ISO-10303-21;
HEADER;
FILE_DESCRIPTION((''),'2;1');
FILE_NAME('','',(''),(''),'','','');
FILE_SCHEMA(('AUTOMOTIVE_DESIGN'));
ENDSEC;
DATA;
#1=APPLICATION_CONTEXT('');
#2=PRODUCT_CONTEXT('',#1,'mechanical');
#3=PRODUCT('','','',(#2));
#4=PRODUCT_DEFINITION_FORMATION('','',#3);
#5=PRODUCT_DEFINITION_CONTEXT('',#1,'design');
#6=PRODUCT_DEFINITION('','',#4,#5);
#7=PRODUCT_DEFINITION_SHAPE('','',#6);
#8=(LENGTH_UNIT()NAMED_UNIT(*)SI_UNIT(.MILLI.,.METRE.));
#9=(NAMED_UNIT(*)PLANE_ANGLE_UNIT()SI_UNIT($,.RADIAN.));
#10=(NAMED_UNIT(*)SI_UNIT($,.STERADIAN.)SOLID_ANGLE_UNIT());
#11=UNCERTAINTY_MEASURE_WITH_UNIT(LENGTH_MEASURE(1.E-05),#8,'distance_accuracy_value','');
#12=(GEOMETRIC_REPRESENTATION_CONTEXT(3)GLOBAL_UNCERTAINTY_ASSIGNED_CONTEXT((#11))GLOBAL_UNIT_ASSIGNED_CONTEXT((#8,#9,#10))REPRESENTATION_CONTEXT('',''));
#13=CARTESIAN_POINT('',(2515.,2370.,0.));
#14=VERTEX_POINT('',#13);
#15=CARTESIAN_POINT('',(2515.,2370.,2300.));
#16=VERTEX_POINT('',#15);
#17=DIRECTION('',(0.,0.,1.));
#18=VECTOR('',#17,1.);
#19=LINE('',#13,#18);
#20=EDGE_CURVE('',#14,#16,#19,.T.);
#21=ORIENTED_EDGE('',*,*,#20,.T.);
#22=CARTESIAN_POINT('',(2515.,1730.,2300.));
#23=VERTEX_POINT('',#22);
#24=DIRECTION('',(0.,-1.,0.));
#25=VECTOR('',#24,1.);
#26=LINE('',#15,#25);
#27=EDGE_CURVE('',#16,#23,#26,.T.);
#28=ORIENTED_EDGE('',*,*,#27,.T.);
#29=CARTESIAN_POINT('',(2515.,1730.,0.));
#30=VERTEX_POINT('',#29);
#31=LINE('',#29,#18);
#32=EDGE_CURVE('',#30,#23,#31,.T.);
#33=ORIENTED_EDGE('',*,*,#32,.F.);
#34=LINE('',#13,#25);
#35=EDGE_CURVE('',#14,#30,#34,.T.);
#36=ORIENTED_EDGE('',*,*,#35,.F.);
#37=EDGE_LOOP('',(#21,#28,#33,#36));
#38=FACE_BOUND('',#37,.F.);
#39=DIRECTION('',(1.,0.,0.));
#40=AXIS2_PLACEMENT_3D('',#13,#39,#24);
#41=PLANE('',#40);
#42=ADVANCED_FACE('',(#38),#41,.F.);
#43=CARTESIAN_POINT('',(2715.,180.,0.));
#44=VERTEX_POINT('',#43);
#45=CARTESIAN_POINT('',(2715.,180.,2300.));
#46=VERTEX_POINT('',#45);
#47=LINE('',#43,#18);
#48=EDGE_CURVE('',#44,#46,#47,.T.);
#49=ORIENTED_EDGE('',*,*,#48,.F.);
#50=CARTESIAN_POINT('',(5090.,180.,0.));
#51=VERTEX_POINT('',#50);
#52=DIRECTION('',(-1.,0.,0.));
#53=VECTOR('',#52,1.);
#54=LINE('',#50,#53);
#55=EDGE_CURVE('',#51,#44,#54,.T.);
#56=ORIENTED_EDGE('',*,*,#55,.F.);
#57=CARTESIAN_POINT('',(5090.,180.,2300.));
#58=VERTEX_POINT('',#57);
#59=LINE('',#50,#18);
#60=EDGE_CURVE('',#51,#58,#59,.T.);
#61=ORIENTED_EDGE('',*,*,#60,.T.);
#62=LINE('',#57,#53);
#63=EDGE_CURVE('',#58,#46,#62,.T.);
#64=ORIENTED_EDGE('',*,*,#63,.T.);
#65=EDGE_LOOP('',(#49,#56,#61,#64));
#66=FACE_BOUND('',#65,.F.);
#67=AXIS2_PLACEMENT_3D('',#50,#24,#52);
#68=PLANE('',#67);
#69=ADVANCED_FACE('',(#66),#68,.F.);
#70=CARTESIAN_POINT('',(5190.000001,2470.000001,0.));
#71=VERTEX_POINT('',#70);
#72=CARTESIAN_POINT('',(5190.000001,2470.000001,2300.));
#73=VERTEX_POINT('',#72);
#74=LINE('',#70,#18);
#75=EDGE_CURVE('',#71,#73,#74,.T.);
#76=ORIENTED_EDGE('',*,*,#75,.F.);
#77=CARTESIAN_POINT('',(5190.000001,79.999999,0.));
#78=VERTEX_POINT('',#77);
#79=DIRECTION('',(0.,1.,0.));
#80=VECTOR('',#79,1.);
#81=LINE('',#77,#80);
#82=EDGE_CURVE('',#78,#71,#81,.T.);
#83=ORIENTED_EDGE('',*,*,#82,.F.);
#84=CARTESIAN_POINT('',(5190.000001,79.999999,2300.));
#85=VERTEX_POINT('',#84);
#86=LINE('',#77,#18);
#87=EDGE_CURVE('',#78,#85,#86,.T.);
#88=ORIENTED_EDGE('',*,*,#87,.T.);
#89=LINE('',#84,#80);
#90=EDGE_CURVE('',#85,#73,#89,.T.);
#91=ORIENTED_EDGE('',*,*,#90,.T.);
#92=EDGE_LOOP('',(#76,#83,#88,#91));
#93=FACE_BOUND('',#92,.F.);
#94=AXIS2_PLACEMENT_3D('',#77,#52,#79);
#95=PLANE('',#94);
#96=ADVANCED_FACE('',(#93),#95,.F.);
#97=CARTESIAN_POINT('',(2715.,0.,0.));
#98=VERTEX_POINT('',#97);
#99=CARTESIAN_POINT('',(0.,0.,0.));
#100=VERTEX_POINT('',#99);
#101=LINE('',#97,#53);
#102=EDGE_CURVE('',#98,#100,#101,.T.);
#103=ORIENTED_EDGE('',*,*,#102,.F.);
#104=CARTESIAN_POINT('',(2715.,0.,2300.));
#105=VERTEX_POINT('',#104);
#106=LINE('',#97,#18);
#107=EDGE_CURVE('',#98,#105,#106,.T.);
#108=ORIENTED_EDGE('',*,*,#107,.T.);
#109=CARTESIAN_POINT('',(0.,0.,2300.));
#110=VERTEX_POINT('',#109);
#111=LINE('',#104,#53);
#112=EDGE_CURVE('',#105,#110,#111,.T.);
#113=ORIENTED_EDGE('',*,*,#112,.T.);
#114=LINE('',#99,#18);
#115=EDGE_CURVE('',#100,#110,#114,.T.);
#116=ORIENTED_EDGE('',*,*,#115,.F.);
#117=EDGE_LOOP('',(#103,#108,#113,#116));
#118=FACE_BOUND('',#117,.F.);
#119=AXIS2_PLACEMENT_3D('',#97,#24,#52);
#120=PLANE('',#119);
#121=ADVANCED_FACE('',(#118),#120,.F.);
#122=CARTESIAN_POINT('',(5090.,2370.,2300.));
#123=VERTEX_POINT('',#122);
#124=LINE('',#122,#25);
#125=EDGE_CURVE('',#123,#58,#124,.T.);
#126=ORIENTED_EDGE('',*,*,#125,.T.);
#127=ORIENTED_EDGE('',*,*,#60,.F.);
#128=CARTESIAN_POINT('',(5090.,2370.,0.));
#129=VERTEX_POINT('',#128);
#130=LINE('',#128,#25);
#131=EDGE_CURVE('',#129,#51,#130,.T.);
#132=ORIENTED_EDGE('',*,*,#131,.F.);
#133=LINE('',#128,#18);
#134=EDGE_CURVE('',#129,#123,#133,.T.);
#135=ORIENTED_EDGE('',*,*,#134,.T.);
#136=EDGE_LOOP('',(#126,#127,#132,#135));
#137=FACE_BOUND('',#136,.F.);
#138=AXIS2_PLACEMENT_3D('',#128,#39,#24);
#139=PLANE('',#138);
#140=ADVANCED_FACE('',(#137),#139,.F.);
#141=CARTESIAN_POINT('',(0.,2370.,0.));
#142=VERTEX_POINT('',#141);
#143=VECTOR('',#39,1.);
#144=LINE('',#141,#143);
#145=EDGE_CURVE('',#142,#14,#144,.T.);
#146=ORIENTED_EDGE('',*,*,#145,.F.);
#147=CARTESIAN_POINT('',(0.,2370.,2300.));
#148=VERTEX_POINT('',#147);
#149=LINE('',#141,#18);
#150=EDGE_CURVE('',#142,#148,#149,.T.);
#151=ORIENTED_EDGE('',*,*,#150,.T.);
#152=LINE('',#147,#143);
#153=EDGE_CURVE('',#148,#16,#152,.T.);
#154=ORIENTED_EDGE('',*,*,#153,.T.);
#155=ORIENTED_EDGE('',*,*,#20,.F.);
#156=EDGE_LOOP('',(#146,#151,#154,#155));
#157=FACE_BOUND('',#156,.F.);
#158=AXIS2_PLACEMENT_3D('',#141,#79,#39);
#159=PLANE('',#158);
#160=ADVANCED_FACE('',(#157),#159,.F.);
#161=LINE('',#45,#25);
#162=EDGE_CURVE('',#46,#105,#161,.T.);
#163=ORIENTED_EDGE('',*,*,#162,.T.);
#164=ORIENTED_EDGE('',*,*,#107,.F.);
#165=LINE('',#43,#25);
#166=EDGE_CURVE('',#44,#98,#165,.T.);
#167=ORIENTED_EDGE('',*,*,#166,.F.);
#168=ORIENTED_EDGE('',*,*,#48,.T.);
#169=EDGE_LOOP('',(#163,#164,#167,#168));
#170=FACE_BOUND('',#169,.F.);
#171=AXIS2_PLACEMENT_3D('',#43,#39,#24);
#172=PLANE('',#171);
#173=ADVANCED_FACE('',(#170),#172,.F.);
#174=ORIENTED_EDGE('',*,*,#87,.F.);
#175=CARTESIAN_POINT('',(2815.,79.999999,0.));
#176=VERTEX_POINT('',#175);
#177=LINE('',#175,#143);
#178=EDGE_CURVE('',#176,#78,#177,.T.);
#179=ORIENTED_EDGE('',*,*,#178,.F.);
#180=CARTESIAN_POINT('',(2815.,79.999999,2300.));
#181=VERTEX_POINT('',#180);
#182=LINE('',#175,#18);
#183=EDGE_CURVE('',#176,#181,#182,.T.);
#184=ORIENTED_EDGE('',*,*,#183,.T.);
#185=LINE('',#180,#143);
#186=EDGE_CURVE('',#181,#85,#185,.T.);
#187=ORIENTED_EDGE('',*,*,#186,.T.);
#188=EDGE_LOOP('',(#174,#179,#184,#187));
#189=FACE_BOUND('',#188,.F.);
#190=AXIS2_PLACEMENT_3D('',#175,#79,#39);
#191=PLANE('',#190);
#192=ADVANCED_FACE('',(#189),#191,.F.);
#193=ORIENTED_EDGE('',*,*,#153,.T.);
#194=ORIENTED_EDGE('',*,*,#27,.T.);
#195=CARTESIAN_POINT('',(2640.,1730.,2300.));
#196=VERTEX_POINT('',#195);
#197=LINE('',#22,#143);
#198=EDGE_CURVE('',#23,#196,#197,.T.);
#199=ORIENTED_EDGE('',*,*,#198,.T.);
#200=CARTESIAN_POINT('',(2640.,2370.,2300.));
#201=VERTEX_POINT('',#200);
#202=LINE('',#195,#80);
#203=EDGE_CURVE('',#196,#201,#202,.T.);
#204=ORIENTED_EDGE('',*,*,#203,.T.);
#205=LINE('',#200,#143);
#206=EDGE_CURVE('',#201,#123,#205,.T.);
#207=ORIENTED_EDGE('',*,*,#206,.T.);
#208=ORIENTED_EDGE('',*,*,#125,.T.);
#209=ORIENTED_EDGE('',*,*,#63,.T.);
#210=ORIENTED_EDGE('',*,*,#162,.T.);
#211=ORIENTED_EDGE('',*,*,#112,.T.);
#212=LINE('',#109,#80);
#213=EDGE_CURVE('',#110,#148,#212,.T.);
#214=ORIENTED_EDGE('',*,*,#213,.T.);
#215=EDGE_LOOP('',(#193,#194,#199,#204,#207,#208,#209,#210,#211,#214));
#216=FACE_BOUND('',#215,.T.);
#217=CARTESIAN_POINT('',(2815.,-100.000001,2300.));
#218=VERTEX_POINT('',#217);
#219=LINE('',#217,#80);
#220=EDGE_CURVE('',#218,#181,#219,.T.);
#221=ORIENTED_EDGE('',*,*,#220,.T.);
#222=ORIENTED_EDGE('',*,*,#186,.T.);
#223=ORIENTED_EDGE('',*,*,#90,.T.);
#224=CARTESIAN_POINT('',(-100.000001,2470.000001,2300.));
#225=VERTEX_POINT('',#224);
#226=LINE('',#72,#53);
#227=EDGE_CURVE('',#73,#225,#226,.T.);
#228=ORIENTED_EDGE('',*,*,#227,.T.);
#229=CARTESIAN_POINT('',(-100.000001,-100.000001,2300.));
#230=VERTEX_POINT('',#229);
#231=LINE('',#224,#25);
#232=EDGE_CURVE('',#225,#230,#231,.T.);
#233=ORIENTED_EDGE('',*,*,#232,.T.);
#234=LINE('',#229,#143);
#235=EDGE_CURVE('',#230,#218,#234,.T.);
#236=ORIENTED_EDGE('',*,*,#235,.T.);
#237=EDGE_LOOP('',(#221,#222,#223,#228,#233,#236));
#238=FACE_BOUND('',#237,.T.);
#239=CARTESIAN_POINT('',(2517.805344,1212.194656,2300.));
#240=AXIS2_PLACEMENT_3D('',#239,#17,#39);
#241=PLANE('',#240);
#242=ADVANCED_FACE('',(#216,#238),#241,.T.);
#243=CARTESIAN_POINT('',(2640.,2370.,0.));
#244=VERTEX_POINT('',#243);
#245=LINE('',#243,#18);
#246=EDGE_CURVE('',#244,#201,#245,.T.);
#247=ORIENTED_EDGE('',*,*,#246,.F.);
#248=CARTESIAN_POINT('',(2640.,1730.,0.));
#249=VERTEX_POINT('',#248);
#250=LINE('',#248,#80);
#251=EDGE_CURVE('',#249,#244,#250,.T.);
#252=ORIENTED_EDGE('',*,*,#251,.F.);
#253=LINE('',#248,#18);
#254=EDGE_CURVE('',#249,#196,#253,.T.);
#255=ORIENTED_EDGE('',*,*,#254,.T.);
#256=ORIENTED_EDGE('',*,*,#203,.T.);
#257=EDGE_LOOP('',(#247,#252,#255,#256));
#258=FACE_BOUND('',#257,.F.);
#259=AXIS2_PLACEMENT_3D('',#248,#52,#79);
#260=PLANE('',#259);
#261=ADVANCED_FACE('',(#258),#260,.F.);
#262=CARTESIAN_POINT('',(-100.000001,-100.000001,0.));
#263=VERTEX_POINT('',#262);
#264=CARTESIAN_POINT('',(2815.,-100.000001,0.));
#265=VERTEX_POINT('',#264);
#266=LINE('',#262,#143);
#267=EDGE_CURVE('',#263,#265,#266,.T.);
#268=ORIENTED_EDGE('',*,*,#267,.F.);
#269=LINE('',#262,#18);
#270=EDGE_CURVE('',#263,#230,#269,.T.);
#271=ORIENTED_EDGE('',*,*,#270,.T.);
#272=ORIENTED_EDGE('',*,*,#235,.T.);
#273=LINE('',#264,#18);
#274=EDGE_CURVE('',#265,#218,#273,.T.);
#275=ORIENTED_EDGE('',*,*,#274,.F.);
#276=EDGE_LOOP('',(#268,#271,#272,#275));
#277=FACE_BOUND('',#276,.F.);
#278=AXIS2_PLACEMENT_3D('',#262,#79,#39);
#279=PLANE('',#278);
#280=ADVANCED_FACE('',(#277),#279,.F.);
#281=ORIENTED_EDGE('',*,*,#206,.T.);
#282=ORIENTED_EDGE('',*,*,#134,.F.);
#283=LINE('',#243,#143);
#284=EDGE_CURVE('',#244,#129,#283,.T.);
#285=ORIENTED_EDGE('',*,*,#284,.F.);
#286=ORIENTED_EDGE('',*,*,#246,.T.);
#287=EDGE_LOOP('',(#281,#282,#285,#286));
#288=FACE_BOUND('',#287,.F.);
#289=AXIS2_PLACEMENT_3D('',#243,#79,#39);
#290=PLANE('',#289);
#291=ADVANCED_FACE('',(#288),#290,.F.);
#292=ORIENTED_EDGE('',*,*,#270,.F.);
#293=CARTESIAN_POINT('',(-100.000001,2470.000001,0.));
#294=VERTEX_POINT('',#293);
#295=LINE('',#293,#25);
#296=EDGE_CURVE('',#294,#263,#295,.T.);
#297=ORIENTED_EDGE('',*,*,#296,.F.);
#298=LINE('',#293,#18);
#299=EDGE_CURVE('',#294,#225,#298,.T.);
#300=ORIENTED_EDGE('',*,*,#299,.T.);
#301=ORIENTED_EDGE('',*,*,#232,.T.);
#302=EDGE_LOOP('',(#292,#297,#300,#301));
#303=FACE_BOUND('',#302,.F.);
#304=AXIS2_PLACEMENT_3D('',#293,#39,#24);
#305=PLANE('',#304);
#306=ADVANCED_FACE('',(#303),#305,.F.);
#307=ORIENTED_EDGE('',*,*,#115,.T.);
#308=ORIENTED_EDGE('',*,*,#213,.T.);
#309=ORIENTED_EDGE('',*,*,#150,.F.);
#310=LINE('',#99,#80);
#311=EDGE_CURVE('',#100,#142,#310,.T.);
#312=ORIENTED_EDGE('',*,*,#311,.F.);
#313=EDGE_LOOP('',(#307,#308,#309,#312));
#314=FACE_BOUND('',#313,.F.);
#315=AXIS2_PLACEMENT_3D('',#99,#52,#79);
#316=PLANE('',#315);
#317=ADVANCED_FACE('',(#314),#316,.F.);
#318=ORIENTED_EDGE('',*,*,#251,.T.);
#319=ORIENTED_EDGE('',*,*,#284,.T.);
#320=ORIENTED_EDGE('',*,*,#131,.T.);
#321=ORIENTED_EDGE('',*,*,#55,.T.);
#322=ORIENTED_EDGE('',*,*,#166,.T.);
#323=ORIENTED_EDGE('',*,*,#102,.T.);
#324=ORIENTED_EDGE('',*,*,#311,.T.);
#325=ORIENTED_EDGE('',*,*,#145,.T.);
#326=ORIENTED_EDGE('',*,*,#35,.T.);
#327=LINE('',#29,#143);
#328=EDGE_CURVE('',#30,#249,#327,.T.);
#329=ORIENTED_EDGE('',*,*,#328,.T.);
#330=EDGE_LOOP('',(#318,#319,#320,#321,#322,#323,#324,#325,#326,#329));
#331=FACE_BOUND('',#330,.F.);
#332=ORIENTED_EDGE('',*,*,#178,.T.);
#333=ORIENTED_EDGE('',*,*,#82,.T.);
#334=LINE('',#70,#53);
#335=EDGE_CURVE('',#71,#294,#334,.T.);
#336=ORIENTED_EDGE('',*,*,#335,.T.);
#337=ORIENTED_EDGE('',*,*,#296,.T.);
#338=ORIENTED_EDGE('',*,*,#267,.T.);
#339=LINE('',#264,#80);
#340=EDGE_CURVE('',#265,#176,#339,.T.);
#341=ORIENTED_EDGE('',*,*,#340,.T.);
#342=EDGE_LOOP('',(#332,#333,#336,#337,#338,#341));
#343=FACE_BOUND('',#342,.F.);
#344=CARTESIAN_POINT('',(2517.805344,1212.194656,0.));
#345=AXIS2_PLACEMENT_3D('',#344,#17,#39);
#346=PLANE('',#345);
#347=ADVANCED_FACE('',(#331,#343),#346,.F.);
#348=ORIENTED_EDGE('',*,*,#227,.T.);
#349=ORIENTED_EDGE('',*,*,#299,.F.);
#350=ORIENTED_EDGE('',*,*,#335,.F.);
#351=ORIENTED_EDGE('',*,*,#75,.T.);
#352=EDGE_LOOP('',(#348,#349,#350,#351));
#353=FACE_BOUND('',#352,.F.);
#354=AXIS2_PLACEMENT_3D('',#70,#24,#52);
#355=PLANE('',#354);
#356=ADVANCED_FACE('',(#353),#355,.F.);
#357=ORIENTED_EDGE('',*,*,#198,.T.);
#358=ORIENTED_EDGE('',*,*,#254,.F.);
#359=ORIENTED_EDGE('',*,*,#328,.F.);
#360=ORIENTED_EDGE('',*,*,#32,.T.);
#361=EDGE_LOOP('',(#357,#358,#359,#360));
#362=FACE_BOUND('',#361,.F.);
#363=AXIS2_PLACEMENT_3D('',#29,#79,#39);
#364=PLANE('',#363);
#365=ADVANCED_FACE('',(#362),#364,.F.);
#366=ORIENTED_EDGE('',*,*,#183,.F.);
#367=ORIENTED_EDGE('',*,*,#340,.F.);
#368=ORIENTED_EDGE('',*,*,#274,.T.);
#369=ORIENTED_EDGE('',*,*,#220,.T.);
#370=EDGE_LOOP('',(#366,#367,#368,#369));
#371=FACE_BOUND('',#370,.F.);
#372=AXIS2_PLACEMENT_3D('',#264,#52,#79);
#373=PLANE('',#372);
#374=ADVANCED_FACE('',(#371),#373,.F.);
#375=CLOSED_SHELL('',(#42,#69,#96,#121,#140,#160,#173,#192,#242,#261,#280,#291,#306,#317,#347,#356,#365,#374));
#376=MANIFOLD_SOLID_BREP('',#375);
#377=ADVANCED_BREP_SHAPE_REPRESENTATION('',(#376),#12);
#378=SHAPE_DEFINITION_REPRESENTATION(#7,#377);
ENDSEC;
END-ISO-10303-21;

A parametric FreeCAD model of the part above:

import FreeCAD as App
import Part
import Sketcher
Q = App.Units.Quantity

doc = App.newDocument("Part")
params = doc.addObject("Spreadsheet::Sheet", "Params")
for row, (alias, value) in enumerate([
    ("sketch1_width", "2375.000001 mm"),
    ("sketch1_width2", "2915.000001 mm"),
    ("sketch1_width3", "2715 mm"),
    ("sketch1_width4", "2515 mm"),
    ("sketch1_width5", "125 mm"),
    ("pad1_length", "2300 mm"),
], start=1):
    params.set(f"A{row}", alias)
    params.set(f"B{row}", "=" + value)
    params.setAlias(f"B{row}", alias)

body = doc.addObject("PartDesign::Body", "Body")

# Sketch on XY plane
sketch1 = body.newObject("Sketcher::SketchObject", "Sketch")
sketch1.AttachmentSupport = (doc.getObject("XY_Plane"), [""])
sketch1.MapMode = "FlatFace"
sketch1.addGeometry([
    Part.LineSegment(App.Vector(2815, -100.000001, 0), App.Vector(2815, 79.999999, 0)),  # 0
    Part.LineSegment(App.Vector(2815, 79.999999, 0), App.Vector(5190.000001, 79.999999, 0)),  # 1
    Part.LineSegment(App.Vector(5190.000001, 79.999999, 0), App.Vector(5190.000001, 2470.000001, 0)),  # 2
    Part.LineSegment(App.Vector(5190.000001, 2470.000001, 0), App.Vector(-100.000001, 2470.000001, 0)),  # 3
    Part.LineSegment(App.Vector(-100.000001, 2470.000001, 0), App.Vector(-100.000001, -100.000001, 0)),  # 4
    Part.LineSegment(App.Vector(-100.000001, -100.000001, 0), App.Vector(2815, -100.000001, 0)),  # 5
    Part.LineSegment(App.Vector(2715, 180, 0), App.Vector(2715, 0, 0)),  # 6
    Part.LineSegment(App.Vector(2715, 0, 0), App.Vector(0, 0, 0)),  # 7
    Part.LineSegment(App.Vector(0, 0, 0), App.Vector(0, 2370, 0)),  # 8
    Part.LineSegment(App.Vector(0, 2370, 0), App.Vector(2515, 2370, 0)),  # 9
    Part.LineSegment(App.Vector(2515, 2370, 0), App.Vector(2515, 1730, 0)),  # 10
    Part.LineSegment(App.Vector(2515, 1730, 0), App.Vector(2640, 1730, 0)),  # 11
    Part.LineSegment(App.Vector(2640, 1730, 0), App.Vector(2640, 2370, 0)),  # 12
    Part.LineSegment(App.Vector(2640, 2370, 0), App.Vector(5090, 2370, 0)),  # 13
    Part.LineSegment(App.Vector(5090, 2370, 0), App.Vector(5090, 180, 0)),  # 14
    Part.LineSegment(App.Vector(5090, 180, 0), App.Vector(2715, 180, 0)),  # 15
], False)
sketch1.addConstraint([
    Sketcher.Constraint("Coincident", 0, 2, 1, 1),
    Sketcher.Constraint("Coincident", 1, 2, 2, 1),
    Sketcher.Constraint("Coincident", 2, 2, 3, 1),
    Sketcher.Constraint("Coincident", 3, 2, 4, 1),
    Sketcher.Constraint("Coincident", 4, 2, 5, 1),
    Sketcher.Constraint("Coincident", 5, 2, 0, 1),
    Sketcher.Constraint("Coincident", 6, 2, 7, 1),
    Sketcher.Constraint("Coincident", 7, 2, 8, 1),
    Sketcher.Constraint("Coincident", 8, 2, 9, 1),
    Sketcher.Constraint("Coincident", 9, 2, 10, 1),
    Sketcher.Constraint("Coincident", 10, 2, 11, 1),
    Sketcher.Constraint("Coincident", 11, 2, 12, 1),
    Sketcher.Constraint("Coincident", 12, 2, 13, 1),
    Sketcher.Constraint("Coincident", 13, 2, 14, 1),
    Sketcher.Constraint("Coincident", 14, 2, 15, 1),
    Sketcher.Constraint("Coincident", 15, 2, 6, 1),
    Sketcher.Constraint("Vertical", 0),
    Sketcher.Constraint("Horizontal", 1),
    Sketcher.Constraint("Vertical", 2),
    Sketcher.Constraint("Horizontal", 3),
    Sketcher.Constraint("Vertical", 4),
    Sketcher.Constraint("Horizontal", 5),
    Sketcher.Constraint("Vertical", 6),
    Sketcher.Constraint("Horizontal", 7),
    Sketcher.Constraint("Vertical", 8),
    Sketcher.Constraint("Horizontal", 9),
    Sketcher.Constraint("Vertical", 10),
    Sketcher.Constraint("Horizontal", 11),
    Sketcher.Constraint("Vertical", 12),
    Sketcher.Constraint("Horizontal", 13),
    Sketcher.Constraint("Vertical", 14),
    Sketcher.Constraint("Horizontal", 15),
    Sketcher.Constraint("Coincident", 7, 2, -1, 1),
    Sketcher.Constraint("Horizontal", 9, 2, 12, 2),
    Sketcher.Constraint("Equal", 1, 15),
    Sketcher.Constraint("Equal", 0, 6),
    Sketcher.Constraint("DistanceX", 1, 1, 1, 2, Q("2375.000001 mm")),
    Sketcher.Constraint("DistanceX", 5, 1, 5, 2, Q("2915.000001 mm")),
    Sketcher.Constraint("DistanceX", 7, 2, 7, 1, Q("2715 mm")),
    Sketcher.Constraint("DistanceX", 9, 1, 9, 2, Q("2515 mm")),
    Sketcher.Constraint("DistanceX", 11, 1, 11, 2, Q("125 mm")),
    Sketcher.Constraint("DistanceY", 0, 1, 0, 2, Q("180 mm")),
    Sketcher.Constraint("DistanceY", 2, 1, 2, 2, Q("2390.000002 mm")),
    Sketcher.Constraint("DistanceY", 8, 1, 8, 2, Q("2370 mm")),
    Sketcher.Constraint("DistanceY", 10, 2, 10, 1, Q("640 mm")),
    Sketcher.Constraint("DistanceX", -1, 1, 0, 2, Q("2815 mm")),
    Sketcher.Constraint("DistanceY", -1, 1, 0, 2, Q("79.999999 mm")),
])
sketch1.setExpression("Constraints[36]", "Params.sketch1_width")
sketch1.setExpression("Constraints[37]", "Params.sketch1_width2")
sketch1.setExpression("Constraints[38]", "Params.sketch1_width3")
sketch1.setExpression("Constraints[39]", "Params.sketch1_width4")
sketch1.setExpression("Constraints[40]", "Params.sketch1_width5")
pad1 = body.newObject("PartDesign::Pad", "Pad")
pad1.Profile = sketch1
pad1.setExpression("Length", "Params.pad1_length")

doc.recompute()
